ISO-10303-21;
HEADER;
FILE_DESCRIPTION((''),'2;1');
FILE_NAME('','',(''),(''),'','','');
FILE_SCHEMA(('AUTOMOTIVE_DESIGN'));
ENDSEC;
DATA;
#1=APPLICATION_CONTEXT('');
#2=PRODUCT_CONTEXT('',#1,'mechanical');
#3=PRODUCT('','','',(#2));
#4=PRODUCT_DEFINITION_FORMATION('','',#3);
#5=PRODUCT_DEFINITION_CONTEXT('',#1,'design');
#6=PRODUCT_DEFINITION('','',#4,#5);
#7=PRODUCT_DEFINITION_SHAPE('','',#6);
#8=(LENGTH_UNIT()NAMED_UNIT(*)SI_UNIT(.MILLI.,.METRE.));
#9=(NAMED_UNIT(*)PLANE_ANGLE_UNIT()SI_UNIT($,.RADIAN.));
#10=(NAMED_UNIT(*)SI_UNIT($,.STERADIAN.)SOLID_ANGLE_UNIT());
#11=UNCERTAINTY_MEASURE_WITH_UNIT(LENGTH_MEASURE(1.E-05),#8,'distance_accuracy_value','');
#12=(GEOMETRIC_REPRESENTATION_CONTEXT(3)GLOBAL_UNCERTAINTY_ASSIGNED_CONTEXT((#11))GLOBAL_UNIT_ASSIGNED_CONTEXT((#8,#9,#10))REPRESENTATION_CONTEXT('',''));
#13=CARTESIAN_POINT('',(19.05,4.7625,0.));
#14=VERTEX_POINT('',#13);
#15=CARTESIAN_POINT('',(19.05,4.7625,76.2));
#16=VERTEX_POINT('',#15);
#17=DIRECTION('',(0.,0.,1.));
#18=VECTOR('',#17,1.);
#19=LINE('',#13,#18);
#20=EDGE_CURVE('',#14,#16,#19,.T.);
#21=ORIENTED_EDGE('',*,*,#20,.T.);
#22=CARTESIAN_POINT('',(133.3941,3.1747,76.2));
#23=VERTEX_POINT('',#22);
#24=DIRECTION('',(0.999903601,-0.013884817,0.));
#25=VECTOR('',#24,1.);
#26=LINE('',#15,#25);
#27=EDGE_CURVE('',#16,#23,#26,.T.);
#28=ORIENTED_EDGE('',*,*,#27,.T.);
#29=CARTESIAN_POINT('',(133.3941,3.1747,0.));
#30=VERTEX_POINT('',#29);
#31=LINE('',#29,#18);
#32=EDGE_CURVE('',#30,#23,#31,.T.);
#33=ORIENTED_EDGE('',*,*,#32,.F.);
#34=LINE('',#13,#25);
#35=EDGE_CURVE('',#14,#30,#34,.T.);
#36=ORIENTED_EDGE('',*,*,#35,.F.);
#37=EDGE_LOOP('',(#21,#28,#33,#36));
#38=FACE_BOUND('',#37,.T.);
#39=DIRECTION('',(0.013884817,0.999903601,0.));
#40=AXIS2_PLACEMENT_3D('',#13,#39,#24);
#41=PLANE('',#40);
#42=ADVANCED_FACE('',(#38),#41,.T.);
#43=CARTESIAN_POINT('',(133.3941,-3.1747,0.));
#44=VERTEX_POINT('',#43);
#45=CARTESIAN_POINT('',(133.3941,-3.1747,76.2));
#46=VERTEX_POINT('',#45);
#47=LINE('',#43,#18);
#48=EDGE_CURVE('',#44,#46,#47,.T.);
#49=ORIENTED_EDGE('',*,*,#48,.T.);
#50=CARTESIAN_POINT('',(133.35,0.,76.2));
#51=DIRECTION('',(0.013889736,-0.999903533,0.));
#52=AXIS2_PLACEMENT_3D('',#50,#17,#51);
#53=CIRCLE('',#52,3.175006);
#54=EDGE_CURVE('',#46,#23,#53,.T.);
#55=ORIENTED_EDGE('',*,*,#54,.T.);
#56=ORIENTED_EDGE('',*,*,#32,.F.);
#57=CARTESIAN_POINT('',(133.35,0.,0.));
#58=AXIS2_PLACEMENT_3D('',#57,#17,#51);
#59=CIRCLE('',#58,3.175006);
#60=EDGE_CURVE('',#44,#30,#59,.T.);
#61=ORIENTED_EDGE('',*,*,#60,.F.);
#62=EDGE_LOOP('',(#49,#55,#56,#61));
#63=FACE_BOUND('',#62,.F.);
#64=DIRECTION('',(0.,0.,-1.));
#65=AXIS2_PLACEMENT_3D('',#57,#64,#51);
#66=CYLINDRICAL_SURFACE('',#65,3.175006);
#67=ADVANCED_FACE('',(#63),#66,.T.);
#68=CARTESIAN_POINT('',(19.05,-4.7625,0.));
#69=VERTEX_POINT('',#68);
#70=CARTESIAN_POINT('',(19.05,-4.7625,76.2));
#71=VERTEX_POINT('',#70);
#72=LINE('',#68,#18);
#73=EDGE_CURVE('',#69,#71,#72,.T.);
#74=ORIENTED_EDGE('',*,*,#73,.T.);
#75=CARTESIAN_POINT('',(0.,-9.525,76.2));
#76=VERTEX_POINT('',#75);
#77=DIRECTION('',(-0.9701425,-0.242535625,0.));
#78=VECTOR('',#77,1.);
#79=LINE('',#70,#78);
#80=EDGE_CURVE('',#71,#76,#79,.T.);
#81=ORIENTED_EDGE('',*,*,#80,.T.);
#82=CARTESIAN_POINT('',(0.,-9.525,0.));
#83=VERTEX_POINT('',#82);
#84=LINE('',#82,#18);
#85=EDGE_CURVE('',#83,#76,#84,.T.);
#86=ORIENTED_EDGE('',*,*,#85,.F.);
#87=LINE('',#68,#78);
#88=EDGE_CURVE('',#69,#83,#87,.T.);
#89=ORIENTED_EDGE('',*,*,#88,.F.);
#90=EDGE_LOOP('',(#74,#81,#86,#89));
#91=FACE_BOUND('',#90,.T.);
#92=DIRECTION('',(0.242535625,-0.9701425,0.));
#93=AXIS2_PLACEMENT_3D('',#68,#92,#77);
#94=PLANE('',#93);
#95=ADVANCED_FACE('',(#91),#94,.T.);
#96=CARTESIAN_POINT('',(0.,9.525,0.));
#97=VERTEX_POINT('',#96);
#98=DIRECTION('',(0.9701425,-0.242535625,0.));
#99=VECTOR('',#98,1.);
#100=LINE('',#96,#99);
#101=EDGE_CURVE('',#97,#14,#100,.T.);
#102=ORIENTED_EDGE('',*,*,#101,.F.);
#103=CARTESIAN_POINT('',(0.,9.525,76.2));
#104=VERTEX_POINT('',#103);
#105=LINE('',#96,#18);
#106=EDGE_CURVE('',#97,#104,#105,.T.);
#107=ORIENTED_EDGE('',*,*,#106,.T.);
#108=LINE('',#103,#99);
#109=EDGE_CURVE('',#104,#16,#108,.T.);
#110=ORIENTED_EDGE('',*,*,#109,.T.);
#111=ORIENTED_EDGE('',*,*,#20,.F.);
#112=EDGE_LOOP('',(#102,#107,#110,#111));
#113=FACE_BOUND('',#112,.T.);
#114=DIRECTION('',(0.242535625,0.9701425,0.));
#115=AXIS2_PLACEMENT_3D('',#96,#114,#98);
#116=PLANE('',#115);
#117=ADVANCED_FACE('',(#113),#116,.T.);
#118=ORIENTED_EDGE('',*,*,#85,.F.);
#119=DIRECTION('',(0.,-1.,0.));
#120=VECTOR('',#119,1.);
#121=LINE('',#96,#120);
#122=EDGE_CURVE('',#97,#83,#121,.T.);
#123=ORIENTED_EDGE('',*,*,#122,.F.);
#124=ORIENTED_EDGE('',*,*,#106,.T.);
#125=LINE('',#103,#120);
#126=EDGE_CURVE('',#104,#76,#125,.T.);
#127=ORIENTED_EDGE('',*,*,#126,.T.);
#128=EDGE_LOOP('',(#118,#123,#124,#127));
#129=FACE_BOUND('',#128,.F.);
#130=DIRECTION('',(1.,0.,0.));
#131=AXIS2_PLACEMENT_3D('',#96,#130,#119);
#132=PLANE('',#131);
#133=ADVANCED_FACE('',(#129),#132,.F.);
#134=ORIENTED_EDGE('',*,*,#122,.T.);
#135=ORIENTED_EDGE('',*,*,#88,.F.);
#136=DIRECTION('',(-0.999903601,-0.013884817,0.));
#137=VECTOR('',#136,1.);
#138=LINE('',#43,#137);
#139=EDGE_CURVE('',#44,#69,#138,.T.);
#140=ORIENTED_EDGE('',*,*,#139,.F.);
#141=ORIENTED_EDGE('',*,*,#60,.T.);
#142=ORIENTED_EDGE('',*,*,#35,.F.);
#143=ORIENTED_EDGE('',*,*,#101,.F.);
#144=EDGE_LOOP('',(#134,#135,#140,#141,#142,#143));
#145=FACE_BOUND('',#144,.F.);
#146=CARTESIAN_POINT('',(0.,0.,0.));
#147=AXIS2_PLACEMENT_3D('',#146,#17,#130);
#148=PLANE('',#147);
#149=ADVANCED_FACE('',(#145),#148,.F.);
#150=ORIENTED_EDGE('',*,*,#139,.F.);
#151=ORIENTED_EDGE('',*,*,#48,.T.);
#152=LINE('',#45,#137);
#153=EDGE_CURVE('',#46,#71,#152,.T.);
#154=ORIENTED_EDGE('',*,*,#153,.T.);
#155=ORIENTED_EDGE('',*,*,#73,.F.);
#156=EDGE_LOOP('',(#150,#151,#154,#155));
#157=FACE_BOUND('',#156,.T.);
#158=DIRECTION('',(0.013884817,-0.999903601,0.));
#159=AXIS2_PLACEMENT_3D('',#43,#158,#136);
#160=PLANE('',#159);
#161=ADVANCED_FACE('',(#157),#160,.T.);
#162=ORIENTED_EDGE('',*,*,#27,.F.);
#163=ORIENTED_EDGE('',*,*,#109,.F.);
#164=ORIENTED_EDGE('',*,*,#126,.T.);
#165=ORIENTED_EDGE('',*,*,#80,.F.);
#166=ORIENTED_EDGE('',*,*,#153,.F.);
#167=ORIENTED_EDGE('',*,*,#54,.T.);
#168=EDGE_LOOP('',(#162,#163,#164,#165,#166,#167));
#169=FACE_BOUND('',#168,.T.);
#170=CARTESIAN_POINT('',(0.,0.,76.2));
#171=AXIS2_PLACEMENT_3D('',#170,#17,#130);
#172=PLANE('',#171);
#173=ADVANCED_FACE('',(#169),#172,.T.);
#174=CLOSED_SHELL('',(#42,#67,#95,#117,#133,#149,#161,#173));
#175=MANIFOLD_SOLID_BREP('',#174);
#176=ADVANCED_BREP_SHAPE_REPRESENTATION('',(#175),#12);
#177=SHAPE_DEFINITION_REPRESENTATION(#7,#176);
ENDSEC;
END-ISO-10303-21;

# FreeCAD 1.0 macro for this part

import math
import FreeCAD as App
import Part
import Sketcher

V = App.Vector
Q = App.Units.Quantity

doc = App.newDocument("Part")
body = doc.addObject("PartDesign::Body", "Body")

# Sketch on XY plane
sketch1 = body.newObject("Sketcher::SketchObject", "Sketch")
sketch1.AttachmentSupport = (doc.getObject("XY_Plane"), [""])
sketch1.MapMode = "FlatFace"
sketch1.addGeometry([
    Part.LineSegment(V(19.1, 4.8, 0), V(0, 9.5, 0)),  # 0
    Part.LineSegment(V(0, 9.5, 0), V(0, -9.5, 0)),  # 1
    Part.LineSegment(V(0, -9.5, 0), V(19.1, -4.8, 0)),  # 2
    Part.LineSegment(V(19.1, -4.8, 0), V(133.4, -3.2, 0)),  # 3
    Part.ArcOfCircle(Part.Circle(V(133.3, 0, 0), V(0, 0, 1), 3.2), math.radians(-89), math.radians(89)),  # 4
    Part.LineSegment(V(133.4, 3.2, 0), V(19.1, 4.8, 0)),  # 5
], False)
sketch1.addConstraint([
    Sketcher.Constraint("Coincident", 0, 2, 1, 1),
    Sketcher.Constraint("Coincident", 1, 2, 2, 1),
    Sketcher.Constraint("Coincident", 2, 2, 3, 1),
    Sketcher.Constraint("Tangent", 3, 2, 4, 1),
    Sketcher.Constraint("Tangent", 4, 2, 5, 1),
    Sketcher.Constraint("Coincident", 5, 2, 0, 1),
    Sketcher.Constraint("Vertical", 1),
    Sketcher.Constraint("Symmetric", 0, 2, 1, 2, -1, 1),
    Sketcher.Constraint("Symmetric", 3, 2, 4, 2, -1),
    Sketcher.Constraint("Vertical", 2, 2, 5, 2),
    Sketcher.Constraint("Radius", 4, Q("0.125 in")),
    Sketcher.Constraint("DistanceY", 1, 2, 1, 1, Q("0.75 in")),
    Sketcher.Constraint("DistanceX", 2, 2, 4, 3, Q("4.5 in")),
    Sketcher.Constraint("DistanceX", -1, 1, 2, 2, Q("0.75 in")),
    Sketcher.Constraint("DistanceY", 2, 2, 5, 2, Q("0.375 in")),
])
pad1 = body.newObject("PartDesign::Pad", "Pad")
pad1.Profile = sketch1
pad1.Length = Q("3 in")

doc.recompute()
